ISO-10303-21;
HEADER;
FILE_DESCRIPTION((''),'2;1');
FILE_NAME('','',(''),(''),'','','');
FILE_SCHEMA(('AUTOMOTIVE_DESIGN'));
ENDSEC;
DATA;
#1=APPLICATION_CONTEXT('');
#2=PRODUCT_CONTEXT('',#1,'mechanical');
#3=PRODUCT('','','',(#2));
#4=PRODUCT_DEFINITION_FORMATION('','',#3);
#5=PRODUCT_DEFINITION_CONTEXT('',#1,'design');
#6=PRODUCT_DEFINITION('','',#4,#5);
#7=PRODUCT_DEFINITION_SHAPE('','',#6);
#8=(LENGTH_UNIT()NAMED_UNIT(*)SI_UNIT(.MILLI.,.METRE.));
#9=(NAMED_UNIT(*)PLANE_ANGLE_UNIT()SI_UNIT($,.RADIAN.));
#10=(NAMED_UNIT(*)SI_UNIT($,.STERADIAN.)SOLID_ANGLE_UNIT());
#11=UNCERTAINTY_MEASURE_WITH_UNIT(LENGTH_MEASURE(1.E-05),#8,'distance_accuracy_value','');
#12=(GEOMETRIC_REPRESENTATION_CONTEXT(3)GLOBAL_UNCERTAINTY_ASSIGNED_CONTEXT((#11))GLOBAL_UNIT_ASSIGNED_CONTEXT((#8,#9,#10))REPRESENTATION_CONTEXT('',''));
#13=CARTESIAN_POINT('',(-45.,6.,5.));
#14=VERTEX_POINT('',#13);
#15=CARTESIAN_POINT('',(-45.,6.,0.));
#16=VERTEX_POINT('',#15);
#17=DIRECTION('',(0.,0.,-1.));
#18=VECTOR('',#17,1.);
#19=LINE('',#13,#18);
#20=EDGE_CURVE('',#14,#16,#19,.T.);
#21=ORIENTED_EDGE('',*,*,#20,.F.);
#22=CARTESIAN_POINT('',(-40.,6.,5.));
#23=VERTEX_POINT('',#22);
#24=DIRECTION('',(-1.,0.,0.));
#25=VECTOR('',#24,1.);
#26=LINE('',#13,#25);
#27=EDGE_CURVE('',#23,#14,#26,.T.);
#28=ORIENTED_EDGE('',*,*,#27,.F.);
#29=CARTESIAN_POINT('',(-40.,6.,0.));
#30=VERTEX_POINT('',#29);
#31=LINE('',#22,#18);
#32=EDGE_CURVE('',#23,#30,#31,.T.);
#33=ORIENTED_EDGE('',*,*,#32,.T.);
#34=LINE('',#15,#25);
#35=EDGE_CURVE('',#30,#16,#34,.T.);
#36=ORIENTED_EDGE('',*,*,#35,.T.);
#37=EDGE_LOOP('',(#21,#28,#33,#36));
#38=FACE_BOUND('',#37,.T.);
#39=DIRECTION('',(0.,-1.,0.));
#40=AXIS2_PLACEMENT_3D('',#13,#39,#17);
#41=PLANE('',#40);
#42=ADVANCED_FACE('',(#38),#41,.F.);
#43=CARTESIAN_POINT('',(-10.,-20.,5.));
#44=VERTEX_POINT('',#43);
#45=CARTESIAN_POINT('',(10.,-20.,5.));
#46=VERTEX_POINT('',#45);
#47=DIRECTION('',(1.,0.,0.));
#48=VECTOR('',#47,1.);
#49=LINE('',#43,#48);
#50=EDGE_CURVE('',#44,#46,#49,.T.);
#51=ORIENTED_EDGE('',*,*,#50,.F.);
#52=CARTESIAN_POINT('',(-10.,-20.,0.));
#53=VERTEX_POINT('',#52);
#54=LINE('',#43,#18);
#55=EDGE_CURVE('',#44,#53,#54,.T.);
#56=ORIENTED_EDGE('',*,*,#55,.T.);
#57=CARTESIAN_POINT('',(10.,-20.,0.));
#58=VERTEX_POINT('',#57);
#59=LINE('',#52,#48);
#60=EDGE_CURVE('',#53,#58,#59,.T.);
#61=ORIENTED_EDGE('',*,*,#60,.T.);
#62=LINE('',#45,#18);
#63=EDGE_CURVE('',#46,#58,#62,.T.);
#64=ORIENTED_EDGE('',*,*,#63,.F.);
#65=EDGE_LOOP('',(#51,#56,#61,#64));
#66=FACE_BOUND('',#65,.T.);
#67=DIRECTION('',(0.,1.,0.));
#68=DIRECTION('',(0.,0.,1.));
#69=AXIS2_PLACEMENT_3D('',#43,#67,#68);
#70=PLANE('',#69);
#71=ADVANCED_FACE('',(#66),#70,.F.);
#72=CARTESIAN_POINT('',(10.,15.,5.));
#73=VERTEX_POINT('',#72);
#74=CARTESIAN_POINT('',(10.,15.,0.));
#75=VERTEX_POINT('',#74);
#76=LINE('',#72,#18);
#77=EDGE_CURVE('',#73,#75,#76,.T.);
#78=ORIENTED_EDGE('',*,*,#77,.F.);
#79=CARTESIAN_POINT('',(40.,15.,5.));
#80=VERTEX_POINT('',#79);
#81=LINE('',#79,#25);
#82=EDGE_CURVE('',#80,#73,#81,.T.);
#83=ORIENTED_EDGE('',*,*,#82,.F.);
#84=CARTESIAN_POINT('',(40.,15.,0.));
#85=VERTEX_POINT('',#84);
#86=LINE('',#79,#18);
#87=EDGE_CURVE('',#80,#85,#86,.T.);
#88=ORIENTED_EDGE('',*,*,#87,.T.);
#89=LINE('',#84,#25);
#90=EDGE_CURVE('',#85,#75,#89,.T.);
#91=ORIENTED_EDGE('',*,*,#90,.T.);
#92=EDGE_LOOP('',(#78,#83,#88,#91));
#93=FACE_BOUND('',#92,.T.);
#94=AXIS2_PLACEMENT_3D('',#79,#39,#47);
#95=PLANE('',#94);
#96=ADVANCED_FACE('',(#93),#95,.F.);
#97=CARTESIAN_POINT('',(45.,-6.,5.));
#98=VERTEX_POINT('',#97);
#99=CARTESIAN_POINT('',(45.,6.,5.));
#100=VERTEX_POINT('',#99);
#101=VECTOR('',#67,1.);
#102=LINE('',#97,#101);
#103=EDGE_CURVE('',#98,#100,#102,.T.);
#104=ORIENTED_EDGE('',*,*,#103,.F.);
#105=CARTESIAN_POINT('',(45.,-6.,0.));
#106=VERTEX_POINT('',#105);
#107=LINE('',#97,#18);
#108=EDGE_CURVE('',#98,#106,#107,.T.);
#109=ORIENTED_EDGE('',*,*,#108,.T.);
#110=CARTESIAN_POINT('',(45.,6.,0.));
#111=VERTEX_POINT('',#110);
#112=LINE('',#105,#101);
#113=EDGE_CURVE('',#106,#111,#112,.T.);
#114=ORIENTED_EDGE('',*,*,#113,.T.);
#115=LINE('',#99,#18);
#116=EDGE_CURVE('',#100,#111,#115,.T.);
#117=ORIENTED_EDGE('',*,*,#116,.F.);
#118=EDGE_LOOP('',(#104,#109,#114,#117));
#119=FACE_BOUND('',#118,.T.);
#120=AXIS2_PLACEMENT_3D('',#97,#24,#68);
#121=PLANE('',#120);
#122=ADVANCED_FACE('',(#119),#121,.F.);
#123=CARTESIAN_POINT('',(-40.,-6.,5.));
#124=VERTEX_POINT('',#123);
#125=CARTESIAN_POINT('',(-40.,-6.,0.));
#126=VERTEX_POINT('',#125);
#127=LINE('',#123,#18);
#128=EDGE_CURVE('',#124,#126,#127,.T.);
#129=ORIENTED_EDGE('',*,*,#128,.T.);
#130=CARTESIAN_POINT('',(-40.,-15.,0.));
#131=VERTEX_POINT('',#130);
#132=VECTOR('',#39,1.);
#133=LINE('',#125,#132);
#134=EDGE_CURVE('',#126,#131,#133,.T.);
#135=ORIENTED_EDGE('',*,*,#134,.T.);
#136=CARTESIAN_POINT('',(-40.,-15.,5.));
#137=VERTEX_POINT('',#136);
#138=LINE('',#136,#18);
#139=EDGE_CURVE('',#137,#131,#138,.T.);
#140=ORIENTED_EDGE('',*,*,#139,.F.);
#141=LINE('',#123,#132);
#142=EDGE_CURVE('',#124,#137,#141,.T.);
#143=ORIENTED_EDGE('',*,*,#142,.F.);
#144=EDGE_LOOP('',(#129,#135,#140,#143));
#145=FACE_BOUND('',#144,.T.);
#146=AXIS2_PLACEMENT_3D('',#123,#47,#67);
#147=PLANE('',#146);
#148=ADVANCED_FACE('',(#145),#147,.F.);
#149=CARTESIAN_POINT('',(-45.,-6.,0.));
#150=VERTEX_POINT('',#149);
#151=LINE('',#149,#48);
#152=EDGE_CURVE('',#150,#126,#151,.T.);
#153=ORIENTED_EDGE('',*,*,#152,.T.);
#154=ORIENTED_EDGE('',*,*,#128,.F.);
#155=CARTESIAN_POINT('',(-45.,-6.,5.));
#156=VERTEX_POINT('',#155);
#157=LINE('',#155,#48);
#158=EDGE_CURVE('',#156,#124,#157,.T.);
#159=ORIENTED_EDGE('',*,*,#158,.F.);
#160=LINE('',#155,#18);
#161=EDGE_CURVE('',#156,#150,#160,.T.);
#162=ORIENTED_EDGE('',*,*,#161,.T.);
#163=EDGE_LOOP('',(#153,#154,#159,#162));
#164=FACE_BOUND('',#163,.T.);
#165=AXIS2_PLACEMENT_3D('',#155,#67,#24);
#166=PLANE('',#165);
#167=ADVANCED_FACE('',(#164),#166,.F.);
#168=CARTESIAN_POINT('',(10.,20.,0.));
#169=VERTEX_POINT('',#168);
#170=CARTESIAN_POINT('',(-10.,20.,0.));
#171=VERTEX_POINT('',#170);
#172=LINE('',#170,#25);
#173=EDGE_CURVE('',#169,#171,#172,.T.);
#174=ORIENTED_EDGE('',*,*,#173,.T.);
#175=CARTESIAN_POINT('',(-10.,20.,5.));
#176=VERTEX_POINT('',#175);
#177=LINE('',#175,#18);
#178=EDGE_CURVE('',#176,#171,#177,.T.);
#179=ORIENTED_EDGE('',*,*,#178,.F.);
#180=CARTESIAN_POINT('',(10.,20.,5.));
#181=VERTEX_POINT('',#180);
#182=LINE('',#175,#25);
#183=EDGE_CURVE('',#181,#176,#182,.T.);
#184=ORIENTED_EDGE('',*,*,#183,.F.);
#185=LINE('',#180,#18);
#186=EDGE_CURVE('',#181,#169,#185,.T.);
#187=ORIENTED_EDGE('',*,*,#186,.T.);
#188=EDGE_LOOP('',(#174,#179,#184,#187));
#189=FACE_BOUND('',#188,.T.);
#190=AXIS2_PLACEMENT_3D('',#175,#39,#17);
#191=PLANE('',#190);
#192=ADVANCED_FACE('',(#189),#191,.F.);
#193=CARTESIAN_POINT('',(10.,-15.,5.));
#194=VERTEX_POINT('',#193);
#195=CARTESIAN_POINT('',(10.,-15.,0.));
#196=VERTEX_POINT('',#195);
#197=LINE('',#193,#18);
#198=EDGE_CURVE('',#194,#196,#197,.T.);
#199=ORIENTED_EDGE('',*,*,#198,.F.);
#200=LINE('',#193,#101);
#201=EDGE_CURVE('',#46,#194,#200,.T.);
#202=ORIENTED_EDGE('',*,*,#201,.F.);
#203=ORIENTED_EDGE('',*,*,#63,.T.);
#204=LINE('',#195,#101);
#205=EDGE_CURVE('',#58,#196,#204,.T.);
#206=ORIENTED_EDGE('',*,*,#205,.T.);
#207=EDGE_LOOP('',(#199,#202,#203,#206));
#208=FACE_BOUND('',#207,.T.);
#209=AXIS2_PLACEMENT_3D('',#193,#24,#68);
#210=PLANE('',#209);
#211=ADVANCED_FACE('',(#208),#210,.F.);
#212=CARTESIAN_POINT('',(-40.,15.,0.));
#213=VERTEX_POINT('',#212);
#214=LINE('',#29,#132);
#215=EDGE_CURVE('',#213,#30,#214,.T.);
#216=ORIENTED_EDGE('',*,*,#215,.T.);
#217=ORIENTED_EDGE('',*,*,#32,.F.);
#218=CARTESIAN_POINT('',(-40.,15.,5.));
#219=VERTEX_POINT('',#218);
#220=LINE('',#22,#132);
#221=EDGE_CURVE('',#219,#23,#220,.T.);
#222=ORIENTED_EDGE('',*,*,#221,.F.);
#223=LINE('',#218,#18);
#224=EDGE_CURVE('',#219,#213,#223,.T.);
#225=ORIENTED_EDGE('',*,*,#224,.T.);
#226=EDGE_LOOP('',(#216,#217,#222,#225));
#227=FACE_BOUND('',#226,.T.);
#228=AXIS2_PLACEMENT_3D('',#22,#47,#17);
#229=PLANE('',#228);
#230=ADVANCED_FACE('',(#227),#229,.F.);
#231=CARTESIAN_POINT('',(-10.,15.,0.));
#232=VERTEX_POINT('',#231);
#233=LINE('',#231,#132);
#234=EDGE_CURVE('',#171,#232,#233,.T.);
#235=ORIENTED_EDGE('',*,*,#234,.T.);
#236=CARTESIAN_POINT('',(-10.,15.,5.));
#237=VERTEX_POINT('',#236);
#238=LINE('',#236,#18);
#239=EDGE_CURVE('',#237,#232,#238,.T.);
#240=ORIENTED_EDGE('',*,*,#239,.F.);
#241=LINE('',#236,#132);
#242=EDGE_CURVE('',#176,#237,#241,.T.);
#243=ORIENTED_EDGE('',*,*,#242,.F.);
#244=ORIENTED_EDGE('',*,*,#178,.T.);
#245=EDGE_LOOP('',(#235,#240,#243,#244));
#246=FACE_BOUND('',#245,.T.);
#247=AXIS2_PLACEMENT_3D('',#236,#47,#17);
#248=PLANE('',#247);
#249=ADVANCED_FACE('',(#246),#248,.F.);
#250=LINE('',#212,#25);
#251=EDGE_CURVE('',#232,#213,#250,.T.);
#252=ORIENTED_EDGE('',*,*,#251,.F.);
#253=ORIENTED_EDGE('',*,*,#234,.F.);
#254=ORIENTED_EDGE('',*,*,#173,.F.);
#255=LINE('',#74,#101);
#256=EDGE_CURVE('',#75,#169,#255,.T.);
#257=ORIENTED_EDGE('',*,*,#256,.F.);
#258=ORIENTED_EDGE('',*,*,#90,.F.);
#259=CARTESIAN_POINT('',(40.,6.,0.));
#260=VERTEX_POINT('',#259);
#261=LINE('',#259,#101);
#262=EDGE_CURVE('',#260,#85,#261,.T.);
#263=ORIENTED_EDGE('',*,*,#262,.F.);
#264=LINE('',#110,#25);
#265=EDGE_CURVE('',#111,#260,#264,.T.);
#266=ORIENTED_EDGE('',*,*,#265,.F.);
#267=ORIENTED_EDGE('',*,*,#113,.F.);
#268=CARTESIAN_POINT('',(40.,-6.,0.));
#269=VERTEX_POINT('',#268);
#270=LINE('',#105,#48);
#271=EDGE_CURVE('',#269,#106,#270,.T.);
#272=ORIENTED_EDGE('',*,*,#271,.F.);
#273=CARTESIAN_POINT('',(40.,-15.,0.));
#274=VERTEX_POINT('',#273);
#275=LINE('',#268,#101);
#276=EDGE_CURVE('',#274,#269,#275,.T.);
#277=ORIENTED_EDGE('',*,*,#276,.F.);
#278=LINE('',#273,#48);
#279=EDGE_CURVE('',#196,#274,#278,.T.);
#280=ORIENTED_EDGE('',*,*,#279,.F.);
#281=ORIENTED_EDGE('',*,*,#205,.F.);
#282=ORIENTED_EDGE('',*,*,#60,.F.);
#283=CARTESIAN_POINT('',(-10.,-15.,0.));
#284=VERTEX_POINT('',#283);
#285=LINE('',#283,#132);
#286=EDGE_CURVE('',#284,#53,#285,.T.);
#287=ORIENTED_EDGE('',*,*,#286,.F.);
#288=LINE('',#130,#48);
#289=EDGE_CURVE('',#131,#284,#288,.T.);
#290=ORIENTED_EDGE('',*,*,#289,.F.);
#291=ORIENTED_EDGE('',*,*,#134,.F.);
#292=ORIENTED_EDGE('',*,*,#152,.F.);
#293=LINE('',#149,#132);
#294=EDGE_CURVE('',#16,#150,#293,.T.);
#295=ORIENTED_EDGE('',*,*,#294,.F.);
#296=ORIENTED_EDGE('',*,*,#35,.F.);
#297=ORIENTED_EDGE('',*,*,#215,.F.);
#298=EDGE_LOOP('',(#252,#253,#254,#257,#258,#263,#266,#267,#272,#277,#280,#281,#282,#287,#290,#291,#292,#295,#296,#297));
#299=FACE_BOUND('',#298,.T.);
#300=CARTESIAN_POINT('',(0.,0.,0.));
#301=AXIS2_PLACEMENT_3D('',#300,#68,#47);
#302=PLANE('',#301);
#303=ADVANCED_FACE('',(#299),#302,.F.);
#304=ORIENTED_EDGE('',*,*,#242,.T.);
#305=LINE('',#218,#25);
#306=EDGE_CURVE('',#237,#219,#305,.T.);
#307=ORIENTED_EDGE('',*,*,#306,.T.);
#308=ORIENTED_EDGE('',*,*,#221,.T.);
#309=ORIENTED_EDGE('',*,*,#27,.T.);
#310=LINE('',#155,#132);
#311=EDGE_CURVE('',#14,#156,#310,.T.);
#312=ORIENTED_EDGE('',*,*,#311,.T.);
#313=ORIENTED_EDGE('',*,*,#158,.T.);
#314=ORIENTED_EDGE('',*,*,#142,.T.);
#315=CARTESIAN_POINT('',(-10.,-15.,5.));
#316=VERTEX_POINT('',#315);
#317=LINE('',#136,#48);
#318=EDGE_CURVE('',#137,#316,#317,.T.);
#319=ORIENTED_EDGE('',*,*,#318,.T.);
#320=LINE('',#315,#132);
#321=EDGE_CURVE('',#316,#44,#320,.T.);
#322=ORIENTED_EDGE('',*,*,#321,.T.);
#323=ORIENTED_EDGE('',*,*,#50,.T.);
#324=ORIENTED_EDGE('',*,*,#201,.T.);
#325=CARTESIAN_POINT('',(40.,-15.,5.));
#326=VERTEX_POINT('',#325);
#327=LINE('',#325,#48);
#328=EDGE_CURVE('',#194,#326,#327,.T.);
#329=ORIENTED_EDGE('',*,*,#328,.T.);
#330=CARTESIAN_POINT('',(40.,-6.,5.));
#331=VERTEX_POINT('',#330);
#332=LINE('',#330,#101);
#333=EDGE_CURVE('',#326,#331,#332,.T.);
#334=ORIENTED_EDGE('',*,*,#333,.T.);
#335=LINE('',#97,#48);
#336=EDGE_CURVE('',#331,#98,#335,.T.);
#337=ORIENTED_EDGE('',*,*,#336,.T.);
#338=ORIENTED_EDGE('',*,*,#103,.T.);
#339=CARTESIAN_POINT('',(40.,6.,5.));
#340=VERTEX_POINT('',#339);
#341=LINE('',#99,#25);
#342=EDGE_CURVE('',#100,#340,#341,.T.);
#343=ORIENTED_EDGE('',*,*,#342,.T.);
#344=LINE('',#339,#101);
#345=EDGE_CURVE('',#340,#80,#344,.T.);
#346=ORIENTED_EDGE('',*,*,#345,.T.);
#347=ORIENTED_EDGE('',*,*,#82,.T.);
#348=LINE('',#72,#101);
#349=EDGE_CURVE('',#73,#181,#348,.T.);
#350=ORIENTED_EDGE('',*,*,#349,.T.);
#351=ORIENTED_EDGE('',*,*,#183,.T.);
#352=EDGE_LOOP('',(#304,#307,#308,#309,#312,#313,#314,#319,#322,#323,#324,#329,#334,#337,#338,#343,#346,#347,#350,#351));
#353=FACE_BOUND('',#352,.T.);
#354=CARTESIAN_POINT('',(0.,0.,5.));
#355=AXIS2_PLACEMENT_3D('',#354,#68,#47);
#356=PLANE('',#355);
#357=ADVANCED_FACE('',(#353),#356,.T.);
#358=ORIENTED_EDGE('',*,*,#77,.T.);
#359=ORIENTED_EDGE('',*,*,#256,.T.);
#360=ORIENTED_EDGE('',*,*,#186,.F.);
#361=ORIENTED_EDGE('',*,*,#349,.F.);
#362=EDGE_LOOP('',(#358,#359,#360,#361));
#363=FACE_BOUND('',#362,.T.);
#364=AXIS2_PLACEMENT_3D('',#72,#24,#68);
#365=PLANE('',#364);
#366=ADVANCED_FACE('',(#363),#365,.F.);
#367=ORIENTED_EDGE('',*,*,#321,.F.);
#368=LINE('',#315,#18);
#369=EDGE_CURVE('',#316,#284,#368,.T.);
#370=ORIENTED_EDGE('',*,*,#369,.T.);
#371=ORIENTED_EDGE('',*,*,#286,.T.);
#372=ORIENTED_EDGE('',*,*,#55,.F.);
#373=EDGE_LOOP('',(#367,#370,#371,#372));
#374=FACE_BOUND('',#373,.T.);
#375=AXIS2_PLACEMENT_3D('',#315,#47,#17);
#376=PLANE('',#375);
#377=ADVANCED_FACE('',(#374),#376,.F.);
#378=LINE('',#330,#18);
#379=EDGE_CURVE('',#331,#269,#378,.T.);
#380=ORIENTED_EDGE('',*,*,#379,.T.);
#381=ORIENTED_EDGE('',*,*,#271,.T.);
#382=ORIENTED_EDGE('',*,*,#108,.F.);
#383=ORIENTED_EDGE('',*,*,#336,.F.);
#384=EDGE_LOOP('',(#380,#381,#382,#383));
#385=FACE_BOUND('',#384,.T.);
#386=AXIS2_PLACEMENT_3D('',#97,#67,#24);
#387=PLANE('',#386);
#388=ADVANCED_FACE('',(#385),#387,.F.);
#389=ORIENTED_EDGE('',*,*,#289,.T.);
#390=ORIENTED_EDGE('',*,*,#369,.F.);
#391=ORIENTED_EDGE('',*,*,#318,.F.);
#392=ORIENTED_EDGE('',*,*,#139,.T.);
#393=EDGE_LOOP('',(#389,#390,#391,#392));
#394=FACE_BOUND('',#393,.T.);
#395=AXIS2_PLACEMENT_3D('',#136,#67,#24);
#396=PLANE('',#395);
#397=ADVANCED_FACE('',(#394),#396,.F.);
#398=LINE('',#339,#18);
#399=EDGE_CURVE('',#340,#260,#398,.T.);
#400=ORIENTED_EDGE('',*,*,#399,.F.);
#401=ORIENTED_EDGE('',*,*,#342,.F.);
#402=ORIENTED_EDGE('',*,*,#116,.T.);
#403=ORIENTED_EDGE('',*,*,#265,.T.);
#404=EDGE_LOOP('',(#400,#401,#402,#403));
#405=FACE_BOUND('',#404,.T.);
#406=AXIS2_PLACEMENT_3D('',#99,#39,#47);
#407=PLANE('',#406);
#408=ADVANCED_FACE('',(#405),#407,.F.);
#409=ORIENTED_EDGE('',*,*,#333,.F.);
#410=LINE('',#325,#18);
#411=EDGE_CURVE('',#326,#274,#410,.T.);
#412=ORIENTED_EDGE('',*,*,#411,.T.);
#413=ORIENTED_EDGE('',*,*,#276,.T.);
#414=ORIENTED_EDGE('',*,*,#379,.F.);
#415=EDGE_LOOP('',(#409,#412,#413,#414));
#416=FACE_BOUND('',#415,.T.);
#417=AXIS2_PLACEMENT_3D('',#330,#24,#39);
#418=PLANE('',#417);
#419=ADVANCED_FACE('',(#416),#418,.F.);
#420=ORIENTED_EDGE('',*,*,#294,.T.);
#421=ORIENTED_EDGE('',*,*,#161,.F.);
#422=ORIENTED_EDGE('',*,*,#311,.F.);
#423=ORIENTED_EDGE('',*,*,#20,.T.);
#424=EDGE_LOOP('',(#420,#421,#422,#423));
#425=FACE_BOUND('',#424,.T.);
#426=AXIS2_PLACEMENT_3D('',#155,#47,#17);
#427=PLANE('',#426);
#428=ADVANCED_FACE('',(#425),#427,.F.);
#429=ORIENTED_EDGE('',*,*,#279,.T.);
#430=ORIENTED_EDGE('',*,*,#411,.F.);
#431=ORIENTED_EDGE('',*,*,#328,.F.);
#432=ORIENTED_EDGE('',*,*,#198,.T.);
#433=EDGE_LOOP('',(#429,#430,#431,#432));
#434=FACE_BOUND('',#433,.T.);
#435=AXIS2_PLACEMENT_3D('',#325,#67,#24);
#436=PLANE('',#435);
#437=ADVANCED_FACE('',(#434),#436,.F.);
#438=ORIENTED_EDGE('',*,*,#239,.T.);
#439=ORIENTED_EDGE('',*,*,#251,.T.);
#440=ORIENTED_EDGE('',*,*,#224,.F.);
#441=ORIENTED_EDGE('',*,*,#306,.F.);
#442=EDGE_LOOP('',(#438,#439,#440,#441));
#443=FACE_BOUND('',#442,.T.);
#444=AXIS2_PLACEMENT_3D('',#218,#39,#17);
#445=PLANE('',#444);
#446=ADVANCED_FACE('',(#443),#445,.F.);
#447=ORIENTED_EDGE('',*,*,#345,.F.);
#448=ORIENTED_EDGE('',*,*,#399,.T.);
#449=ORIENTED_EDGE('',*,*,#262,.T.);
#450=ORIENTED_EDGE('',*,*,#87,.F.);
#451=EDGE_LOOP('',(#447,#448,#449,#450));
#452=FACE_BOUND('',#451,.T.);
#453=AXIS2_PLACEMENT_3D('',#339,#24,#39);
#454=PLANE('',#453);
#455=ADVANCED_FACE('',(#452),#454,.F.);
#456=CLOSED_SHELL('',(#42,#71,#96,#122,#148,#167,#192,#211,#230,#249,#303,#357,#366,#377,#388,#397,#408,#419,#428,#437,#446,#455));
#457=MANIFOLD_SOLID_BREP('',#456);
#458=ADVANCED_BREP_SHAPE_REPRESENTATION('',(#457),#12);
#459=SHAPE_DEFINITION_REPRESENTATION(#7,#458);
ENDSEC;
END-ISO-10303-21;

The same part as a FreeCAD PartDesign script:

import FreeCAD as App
import Part
import Sketcher
from FreeCAD import Vector
Q = App.Units.Quantity


def add_polygon(sketch, points):
    """Adds a closed chain of lines whose ends are joined by coincident constraints."""
    first, n = sketch.GeometryCount, len(points)
    for a, b in zip(points, points[1:] + points[:1]):
        sketch.addGeometry(Part.LineSegment(App.Vector(*a, 0), App.Vector(*b, 0)), False)
    for i in range(n):
        sketch.addConstraint(Sketcher.Constraint("Coincident", first + i, 2, first + (i + 1) % n, 1))

doc = App.newDocument("Part")
body = doc.addObject("PartDesign::Body", "Body")

# Sketch on XY plane
sketch1 = body.newObject("Sketcher::SketchObject", "Sketch")
sketch1.AttachmentSupport = (doc.getObject("XY_Plane"), [""])
sketch1.MapMode = "FlatFace"
add_polygon(sketch1, [(-45, 6), (-45, -6), (-40, -6), (-40, -15), (-10, -15), (-10, -20), (10, -20), (10, -15), (40, -15), (40, -6), (45, -6), (45, 6), (40, 6), (40, 15), (10, 15), (10, 20), (-10, 20), (-10, 15), (-40, 15), (-40, 6)])  # lines 0-19
sketch1.addConstraint([
    Sketcher.Constraint("Vertical", 0),
    Sketcher.Constraint("Horizontal", 1),
    Sketcher.Constraint("Vertical", 2),
    Sketcher.Constraint("Horizontal", 3),
    Sketcher.Constraint("Vertical", 4),
    Sketcher.Constraint("Horizontal", 5),
    Sketcher.Constraint("Vertical", 6),
    Sketcher.Constraint("Horizontal", 7),
    Sketcher.Constraint("Vertical", 8),
    Sketcher.Constraint("Horizontal", 9),
    Sketcher.Constraint("Vertical", 10),
    Sketcher.Constraint("Horizontal", 11),
    Sketcher.Constraint("Vertical", 12),
    Sketcher.Constraint("Horizontal", 13),
    Sketcher.Constraint("Vertical", 14),
    Sketcher.Constraint("Horizontal", 15),
    Sketcher.Constraint("Vertical", 16),
    Sketcher.Constraint("Horizontal", 17),
    Sketcher.Constraint("Vertical", 18),
    Sketcher.Constraint("Horizontal", 19),
    Sketcher.Constraint("Symmetric", 0, 2, 10, 2, -1, 1),
    Sketcher.Constraint("Symmetric", 2, 2, 12, 2, -1, 1),
    Sketcher.Constraint("Symmetric", 4, 2, 14, 2, -1, 1),
    Sketcher.Constraint("Symmetric", 6, 2, 16, 2, -1, 1),
    Sketcher.Constraint("Symmetric", 8, 2, 18, 2, -1, 1),
    Sketcher.Constraint("Symmetric", 3, 2, 6, 2, -2),
    Sketcher.Constraint("Symmetric", 1, 2, 8, 2, -2),
    Sketcher.Constraint("Equal", 19, 4),
    Sketcher.Constraint("DistanceX", 1, 1, 1, 2, Q("5 mm")),
    Sketcher.Constraint("DistanceX", 3, 1, 3, 2, Q("30 mm")),
    Sketcher.Constraint("DistanceX", 5, 1, 5, 2, Q("20 mm")),
    Sketcher.Constraint("DistanceY", 0, 2, 0, 1, Q("12 mm")),
    Sketcher.Constraint("DistanceY", 2, 2, 2, 1, Q("9 mm")),
])
pad1 = body.newObject("PartDesign::Pad", "Pad")
pad1.Profile = sketch1
pad1.Length = 5

doc.recompute()
